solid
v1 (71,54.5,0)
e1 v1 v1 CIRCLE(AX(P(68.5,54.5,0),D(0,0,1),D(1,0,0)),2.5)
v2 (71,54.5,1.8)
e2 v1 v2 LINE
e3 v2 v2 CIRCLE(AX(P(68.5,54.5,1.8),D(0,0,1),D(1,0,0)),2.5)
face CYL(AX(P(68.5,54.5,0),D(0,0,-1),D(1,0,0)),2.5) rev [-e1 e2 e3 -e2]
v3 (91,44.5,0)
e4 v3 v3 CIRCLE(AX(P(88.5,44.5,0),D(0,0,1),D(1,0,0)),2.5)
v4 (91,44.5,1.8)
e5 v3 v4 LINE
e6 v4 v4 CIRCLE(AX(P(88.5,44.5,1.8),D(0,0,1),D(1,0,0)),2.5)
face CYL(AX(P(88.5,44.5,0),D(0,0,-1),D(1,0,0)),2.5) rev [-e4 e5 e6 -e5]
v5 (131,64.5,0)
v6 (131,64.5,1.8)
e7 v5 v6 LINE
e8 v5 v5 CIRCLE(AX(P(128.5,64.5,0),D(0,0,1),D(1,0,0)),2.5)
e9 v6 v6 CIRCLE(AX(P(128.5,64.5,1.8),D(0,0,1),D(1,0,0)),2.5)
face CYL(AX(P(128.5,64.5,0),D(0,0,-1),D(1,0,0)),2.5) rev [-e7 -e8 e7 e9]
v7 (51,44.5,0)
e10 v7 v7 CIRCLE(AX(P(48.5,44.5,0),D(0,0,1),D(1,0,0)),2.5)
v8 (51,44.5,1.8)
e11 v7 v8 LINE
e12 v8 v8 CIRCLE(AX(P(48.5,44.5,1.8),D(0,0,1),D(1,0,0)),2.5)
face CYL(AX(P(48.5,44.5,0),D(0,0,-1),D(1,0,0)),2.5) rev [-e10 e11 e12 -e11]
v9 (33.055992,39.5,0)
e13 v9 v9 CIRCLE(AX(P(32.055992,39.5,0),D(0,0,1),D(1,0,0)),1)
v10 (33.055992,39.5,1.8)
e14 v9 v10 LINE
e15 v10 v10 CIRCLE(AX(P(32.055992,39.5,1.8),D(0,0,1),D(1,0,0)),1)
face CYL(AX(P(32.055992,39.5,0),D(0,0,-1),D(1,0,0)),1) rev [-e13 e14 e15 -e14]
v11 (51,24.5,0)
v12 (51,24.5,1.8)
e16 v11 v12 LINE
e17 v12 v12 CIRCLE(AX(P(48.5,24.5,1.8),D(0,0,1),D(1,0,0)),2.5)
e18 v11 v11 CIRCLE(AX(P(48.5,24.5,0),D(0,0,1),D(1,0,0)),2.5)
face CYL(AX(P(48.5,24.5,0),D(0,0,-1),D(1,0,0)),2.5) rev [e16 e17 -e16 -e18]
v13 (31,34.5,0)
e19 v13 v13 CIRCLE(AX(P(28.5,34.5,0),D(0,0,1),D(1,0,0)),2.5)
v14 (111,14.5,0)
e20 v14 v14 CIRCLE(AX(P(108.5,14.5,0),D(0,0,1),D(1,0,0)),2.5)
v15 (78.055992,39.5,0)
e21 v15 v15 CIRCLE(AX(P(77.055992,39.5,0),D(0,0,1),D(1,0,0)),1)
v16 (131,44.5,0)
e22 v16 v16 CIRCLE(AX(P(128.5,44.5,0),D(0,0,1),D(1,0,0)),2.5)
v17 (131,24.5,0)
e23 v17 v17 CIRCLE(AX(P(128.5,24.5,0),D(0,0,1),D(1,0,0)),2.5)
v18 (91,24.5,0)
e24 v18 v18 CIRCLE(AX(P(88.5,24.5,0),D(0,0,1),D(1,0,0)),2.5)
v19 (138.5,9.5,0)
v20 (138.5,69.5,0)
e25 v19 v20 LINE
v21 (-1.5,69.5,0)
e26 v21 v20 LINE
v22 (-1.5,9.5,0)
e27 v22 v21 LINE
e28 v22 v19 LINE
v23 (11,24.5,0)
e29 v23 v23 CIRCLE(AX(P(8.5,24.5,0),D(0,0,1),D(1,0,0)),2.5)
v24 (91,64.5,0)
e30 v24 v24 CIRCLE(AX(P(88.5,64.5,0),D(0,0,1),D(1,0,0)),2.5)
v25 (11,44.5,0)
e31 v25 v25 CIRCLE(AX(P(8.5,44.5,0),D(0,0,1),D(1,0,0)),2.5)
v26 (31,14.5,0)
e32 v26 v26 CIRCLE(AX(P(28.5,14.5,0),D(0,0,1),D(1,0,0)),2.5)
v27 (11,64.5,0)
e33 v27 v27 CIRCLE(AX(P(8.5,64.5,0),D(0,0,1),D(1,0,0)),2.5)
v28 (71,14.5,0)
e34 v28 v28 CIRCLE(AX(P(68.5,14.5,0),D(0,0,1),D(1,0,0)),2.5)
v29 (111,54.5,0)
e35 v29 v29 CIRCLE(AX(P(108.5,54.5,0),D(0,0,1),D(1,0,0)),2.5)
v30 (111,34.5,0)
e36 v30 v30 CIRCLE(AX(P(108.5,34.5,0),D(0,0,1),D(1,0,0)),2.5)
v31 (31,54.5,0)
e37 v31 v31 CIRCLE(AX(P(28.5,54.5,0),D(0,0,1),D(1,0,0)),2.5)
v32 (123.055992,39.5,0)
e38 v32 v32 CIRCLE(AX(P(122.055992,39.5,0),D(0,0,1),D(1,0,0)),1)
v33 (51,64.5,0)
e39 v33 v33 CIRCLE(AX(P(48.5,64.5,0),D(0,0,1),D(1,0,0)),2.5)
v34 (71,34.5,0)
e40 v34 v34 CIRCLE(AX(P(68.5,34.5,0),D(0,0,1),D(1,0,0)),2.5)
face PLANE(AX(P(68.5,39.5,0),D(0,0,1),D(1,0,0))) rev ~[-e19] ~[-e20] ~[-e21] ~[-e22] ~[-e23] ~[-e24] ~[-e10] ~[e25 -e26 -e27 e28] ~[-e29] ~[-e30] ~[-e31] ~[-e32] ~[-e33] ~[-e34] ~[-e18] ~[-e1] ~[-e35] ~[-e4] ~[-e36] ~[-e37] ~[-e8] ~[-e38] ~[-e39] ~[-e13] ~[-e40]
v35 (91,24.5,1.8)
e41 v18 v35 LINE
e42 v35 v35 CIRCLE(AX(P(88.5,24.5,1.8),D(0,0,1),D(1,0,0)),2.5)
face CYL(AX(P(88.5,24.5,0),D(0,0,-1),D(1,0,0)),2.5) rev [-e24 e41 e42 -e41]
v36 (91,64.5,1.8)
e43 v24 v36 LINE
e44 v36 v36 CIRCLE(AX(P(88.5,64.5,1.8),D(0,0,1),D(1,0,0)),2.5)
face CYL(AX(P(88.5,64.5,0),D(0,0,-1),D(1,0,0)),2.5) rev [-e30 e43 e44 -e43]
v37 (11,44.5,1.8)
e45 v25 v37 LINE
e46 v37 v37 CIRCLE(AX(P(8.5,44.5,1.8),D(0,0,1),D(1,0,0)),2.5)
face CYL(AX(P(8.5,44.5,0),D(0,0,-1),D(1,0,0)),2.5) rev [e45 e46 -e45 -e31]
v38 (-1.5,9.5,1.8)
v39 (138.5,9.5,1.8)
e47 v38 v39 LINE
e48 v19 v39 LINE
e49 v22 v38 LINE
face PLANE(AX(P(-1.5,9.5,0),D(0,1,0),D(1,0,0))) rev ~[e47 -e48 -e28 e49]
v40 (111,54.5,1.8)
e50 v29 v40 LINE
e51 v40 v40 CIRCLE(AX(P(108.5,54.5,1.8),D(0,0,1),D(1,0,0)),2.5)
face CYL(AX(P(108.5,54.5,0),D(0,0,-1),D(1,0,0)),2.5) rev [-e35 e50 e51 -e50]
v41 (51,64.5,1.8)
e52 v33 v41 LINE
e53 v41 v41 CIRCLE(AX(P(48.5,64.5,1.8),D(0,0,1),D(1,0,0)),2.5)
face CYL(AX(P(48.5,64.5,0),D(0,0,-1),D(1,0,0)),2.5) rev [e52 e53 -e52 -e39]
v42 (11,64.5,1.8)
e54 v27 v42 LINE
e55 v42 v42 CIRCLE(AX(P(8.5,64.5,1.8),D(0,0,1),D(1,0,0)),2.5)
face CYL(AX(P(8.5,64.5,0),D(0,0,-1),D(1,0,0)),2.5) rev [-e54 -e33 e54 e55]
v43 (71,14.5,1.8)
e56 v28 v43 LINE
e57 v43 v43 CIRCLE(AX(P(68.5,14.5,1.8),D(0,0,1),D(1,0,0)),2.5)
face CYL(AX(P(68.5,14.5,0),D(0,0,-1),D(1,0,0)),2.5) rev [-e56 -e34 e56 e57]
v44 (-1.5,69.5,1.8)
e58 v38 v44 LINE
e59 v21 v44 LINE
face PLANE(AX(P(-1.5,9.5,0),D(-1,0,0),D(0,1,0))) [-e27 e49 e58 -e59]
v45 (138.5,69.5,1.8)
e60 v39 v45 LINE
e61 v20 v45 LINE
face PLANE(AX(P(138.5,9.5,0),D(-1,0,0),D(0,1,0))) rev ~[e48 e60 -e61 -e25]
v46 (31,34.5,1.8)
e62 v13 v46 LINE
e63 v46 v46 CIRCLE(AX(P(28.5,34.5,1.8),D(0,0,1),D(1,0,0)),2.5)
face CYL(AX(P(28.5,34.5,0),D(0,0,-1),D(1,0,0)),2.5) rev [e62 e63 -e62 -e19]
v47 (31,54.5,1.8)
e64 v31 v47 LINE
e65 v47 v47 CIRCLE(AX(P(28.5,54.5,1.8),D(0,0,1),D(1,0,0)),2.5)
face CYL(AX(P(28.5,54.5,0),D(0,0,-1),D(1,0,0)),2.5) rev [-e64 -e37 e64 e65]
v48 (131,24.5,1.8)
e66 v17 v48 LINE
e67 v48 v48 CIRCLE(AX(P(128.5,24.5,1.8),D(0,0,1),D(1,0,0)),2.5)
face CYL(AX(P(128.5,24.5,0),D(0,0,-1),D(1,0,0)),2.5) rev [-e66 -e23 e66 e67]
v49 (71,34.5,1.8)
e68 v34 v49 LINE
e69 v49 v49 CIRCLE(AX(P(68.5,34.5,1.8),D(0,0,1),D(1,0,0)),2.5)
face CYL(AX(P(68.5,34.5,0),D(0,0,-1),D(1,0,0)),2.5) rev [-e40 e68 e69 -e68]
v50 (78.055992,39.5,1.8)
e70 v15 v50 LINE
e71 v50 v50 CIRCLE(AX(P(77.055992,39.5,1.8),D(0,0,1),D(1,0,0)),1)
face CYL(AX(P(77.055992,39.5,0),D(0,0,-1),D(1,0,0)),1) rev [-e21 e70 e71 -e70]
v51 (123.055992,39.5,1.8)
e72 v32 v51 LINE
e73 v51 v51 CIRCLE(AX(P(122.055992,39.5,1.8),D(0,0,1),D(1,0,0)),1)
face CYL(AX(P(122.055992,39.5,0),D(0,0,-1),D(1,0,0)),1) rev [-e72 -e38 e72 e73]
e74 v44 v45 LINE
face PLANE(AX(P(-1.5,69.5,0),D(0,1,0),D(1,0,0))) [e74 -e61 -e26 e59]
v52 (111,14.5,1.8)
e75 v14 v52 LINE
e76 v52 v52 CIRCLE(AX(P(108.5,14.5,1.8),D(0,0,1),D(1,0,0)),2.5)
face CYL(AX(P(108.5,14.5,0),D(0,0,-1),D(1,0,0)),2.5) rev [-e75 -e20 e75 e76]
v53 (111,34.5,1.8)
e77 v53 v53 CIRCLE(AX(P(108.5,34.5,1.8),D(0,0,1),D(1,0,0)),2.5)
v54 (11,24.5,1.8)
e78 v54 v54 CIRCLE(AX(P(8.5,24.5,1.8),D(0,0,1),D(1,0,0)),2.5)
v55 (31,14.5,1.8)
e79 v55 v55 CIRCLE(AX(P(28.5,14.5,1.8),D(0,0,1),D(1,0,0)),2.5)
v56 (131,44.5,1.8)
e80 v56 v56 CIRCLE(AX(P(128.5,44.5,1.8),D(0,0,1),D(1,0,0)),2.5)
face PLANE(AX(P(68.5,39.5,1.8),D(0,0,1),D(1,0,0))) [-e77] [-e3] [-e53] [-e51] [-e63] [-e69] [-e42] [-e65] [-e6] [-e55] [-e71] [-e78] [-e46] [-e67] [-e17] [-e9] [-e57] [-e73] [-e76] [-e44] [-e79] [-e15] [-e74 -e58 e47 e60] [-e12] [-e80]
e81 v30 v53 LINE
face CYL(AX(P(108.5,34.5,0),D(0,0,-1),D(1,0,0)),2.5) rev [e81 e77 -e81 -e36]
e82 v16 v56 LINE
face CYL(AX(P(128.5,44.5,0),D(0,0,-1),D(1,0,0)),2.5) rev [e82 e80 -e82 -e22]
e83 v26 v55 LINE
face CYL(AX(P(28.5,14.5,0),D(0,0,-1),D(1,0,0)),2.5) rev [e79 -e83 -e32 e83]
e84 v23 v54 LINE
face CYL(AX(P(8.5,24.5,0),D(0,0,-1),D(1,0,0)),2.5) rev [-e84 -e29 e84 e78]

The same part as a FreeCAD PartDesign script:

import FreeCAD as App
import Part
import Sketcher

V = App.Vector

doc = App.newDocument("Part")
body = doc.addObject("PartDesign::Body", "Body")

# Sketch on XY plane
sketch1 = body.newObject("Sketcher::SketchObject", "Sketch")
sketch1.AttachmentSupport = (doc.getObject("XY_Plane"), [""])
sketch1.MapMode = "FlatFace"
sketch1.addGeometry([
    Part.LineSegment(V(-1.5, 69.5, 0), V(-1.5, 9.5, 0)),  # 0
    Part.LineSegment(V(-1.5, 9.5, 0), V(138.5, 9.5, 0)),  # 1
    Part.LineSegment(V(138.5, 9.5, 0), V(138.5, 69.5, 0)),  # 2
    Part.LineSegment(V(138.5, 69.5, 0), V(-1.5, 69.5, 0)),  # 3
    Part.Circle(V(28.5, 14.5, 0), V(0, 0, 1), 2.5),  # 4
    Part.Circle(V(8.5, 24.5, 0), V(0, 0, 1), 2.5),  # 5
    Part.Circle(V(48.5, 24.5, 0), V(0, 0, 1), 2.5),  # 6
    Part.Circle(V(28.5, 34.5, 0), V(0, 0, 1), 2.5),  # 7
    Part.Circle(V(68.5, 14.5, 0), V(0, 0, 1), 2.5),  # 8
    Part.Circle(V(88.5, 24.5, 0), V(0, 0, 1), 2.5),  # 9
    Part.Circle(V(108.5, 14.5, 0), V(0, 0, 1), 2.5),  # 10
    Part.Circle(V(128.5, 24.5, 0), V(0, 0, 1), 2.5),  # 11
    Part.Circle(V(68.5, 34.5, 0), V(0, 0, 1), 2.5),  # 12
    Part.Circle(V(108.5, 34.5, 0), V(0, 0, 1), 2.5),  # 13
    Part.Circle(V(8.5, 44.5, 0), V(0, 0, 1), 2.5),  # 14
    Part.Circle(V(32.055992, 39.5, 0), V(0, 0, 1), 1),  # 15
    Part.Circle(V(48.5, 44.5, 0), V(0, 0, 1), 2.5),  # 16
    Part.Circle(V(28.5, 54.5, 0), V(0, 0, 1), 2.5),  # 17
    Part.Circle(V(8.5, 64.5, 0), V(0, 0, 1), 2.5),  # 18
    Part.Circle(V(48.5, 64.5, 0), V(0, 0, 1), 2.5),  # 19
    Part.Circle(V(77.055992, 39.5, 0), V(0, 0, 1), 1),  # 20
    Part.Circle(V(88.5, 44.5, 0), V(0, 0, 1), 2.5),  # 21
    Part.Circle(V(122.055992, 39.5, 0), V(0, 0, 1), 1),  # 22
    Part.Circle(V(128.5, 44.5, 0), V(0, 0, 1), 2.5),  # 23
    Part.Circle(V(68.5, 54.5, 0), V(0, 0, 1), 2.5),  # 24
    Part.Circle(V(88.5, 64.5, 0), V(0, 0, 1), 2.5),  # 25
    Part.Circle(V(108.5, 54.5, 0), V(0, 0, 1), 2.5),  # 26
    Part.Circle(V(128.5, 64.5, 0), V(0, 0, 1), 2.5),  # 27
], False)
sketch1.addConstraint([
    Sketcher.Constraint("Coincident", 0, 2, 1, 1),
    Sketcher.Constraint("Coincident", 1, 2, 2, 1),
    Sketcher.Constraint("Coincident", 2, 2, 3, 1),
    Sketcher.Constraint("Coincident", 3, 2, 0, 1),
    Sketcher.Constraint("Vertical", 0),
    Sketcher.Constraint("Horizontal", 1),
    Sketcher.Constraint("Vertical", 2),
    Sketcher.Constraint("Horizontal", 3),
    Sketcher.Constraint("Equal", 4, 5),
    Sketcher.Constraint("Equal", 5, 6),
    Sketcher.Constraint("Equal", 6, 7),
    Sketcher.Constraint("Equal", 7, 8),
    Sketcher.Constraint("Equal", 8, 9),
    Sketcher.Constraint("Equal", 9, 10),
    Sketcher.Constraint("Equal", 10, 11),
    Sketcher.Constraint("Equal", 11, 12),
    Sketcher.Constraint("Equal", 12, 13),
    Sketcher.Constraint("Equal", 13, 14),
    Sketcher.Constraint("Equal", 14, 16),
    Sketcher.Constraint("Equal", 16, 17),
    Sketcher.Constraint("Equal", 17, 18),
    Sketcher.Constraint("Equal", 18, 19),
    Sketcher.Constraint("Equal", 15, 20),
    Sketcher.Constraint("Equal", 19, 21),
    Sketcher.Constraint("Equal", 20, 22),
    Sketcher.Constraint("Equal", 21, 23),
    Sketcher.Constraint("Equal", 23, 24),
    Sketcher.Constraint("Equal", 24, 25),
    Sketcher.Constraint("Equal", 25, 26),
    Sketcher.Constraint("Equal", 26, 27),
    Sketcher.Constraint("Horizontal", 5, 3, 6, 3),
    Sketcher.Constraint("Horizontal", 4, 3, 8, 3),
    Sketcher.Constraint("Horizontal", 6, 3, 9, 3),
    Sketcher.Constraint("Horizontal", 8, 3, 10, 3),
    Sketcher.Constraint("Horizontal", 9, 3, 11, 3),
    Sketcher.Constraint("Horizontal", 7, 3, 12, 3),
    Sketcher.Constraint("Horizontal", 12, 3, 13, 3),
    Sketcher.Constraint("Horizontal", 14, 3, 16, 3),
    Sketcher.Constraint("Horizontal", 18, 3, 19, 3),
    Sketcher.Constraint("Horizontal", 15, 3, 20, 3),
    Sketcher.Constraint("Horizontal", 16, 3, 21, 3),
    Sketcher.Constraint("Horizontal", 20, 3, 22, 3),
    Sketcher.Constraint("Horizontal", 21, 3, 23, 3),
    Sketcher.Constraint("Horizontal", 17, 3, 24, 3),
    Sketcher.Constraint("Horizontal", 19, 3, 25, 3),
    Sketcher.Constraint("Horizontal", 24, 3, 26, 3),
    Sketcher.Constraint("Horizontal", 25, 3, 27, 3),
    Sketcher.Constraint("Vertical", 4, 3, 7, 3),
    Sketcher.Constraint("Vertical", 8, 3, 12, 3),
    Sketcher.Constraint("Vertical", 10, 3, 13, 3),
    Sketcher.Constraint("Vertical", 5, 3, 14, 3),
    Sketcher.Constraint("Vertical", 6, 3, 16, 3),
    Sketcher.Constraint("Vertical", 7, 3, 17, 3),
    Sketcher.Constraint("Vertical", 14, 3, 18, 3),
    Sketcher.Constraint("Vertical", 16, 3, 19, 3),
    Sketcher.Constraint("Vertical", 9, 3, 21, 3),
    Sketcher.Constraint("Vertical", 11, 3, 23, 3),
    Sketcher.Constraint("Vertical", 12, 3, 24, 3),
    Sketcher.Constraint("Vertical", 21, 3, 25, 3),
    Sketcher.Constraint("Vertical", 13, 3, 26, 3),
    Sketcher.Constraint("Vertical", 23, 3, 27, 3),
    Sketcher.Constraint("Diameter", 4, 5.0),
    Sketcher.Constraint("Diameter", 15, 2.0),
    Sketcher.Constraint("DistanceX", 1, 1, 1, 2, 140.0),
    Sketcher.Constraint("DistanceY", 0, 2, 0, 1, 60.0),
    Sketcher.Constraint("DistanceX", 5, 3, 4, 3, 20.0),
    Sketcher.Constraint("DistanceY", 4, 3, 5, 3, 10.0),
    Sketcher.Constraint("DistanceX", 4, 3, 6, 3, 20.0),
    Sketcher.Constraint("DistanceY", 4, 3, 7, 3, 20.0),
    Sketcher.Constraint("DistanceX", 6, 3, 8, 3, 20.0),
    Sketcher.Constraint("DistanceX", 8, 3, 9, 3, 20.0),
    Sketcher.Constraint("DistanceX", 9, 3, 10, 3, 20.0),
    Sketcher.Constraint("DistanceX", 10, 3, 11, 3, 20.0),
    Sketcher.Constraint("DistanceY", 5, 3, 14, 3, 20.0),
    Sketcher.Constraint("DistanceY", 7, 3, 15, 3, 5.0),
    Sketcher.Constraint("DistanceY", 15, 3, 17, 3, 15.0),
    Sketcher.Constraint("DistanceY", 14, 3, 18, 3, 20.0),
    Sketcher.Constraint("DistanceX", 0, 2, 5, 3, 10.0),
    Sketcher.Constraint("DistanceY", 0, 2, 5, 3, 15.0),
    Sketcher.Constraint("DistanceX", -1, 1, 4, 3, 28.5),
    Sketcher.Constraint("DistanceY", -1, 1, 4, 3, 14.5),
    Sketcher.Constraint("DistanceX", -1, 1, 15, 3, 32.055992),
    Sketcher.Constraint("DistanceX", -1, 1, 20, 3, 77.055992),
    Sketcher.Constraint("DistanceX", -1, 1, 22, 3, 122.055992),
])
pad1 = body.newObject("PartDesign::Pad", "Pad")
pad1.Profile = sketch1
pad1.Length = 1.8

doc.recompute()
